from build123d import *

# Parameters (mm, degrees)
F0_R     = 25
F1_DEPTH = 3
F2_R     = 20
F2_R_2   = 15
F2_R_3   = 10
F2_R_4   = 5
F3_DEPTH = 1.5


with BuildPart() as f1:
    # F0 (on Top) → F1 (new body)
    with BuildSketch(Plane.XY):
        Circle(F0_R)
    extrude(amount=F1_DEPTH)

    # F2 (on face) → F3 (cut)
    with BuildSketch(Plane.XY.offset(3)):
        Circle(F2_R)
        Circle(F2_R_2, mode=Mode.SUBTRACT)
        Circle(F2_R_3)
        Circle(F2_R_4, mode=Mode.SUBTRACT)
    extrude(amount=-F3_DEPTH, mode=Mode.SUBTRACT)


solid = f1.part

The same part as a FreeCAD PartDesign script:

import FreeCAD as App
import Part
import Sketcher
from FreeCAD import Vector
Q = App.Units.Quantity

doc = App.newDocument("Part")
params = doc.addObject("Spreadsheet::Sheet", "Params")
for row, (alias, value) in enumerate([
    ("sketch1_diameter", "50 mm"),
    ("pad1_length", "3 mm"),
    ("sketch2_diameter", "40 mm"),
    ("sketch2_diameter2", "30 mm"),
    ("sketch2_diameter3", "20 mm"),
    ("sketch2_diameter4", "10 mm"),
    ("pocket1_length", "1.5 mm"),
], start=1):
    params.set(f"A{row}", alias)
    params.set(f"B{row}", "=" + value)
    params.setAlias(f"B{row}", alias)

body = doc.addObject("PartDesign::Body", "Body")

sketch1 = body.newObject("Sketcher::SketchObject", "Sketch")
sketch1.AttachmentSupport = (doc.getObject("XY_Plane"), [""])
sketch1.MapMode = "FlatFace"
sketch1.addGeometry(Part.Circle(Vector(0, 0, 0), Vector(0, 0, 1), 25), False)
sketch1.addConstraint([
    Sketcher.Constraint("Coincident", 0, 3, -1, 1),
    Sketcher.Constraint("Diameter", 0, Q("50 mm")),
])
sketch1.setExpression("Constraints[1]", "Params.sketch1_diameter")
pad1 = body.newObject("PartDesign::Pad", "Pad")
pad1.Profile = sketch1
pad1.setExpression("Length", "Params.pad1_length")

sketch2 = body.newObject("Sketcher::SketchObject", "Sketch001")
sketch2.AttachmentSupport = (doc.getObject("XY_Plane"), [""])
sketch2.MapMode = "FlatFace"
sketch2.AttachmentOffset = App.Placement(Vector(0, 0, 3), App.Rotation())
sketch2.addGeometry([
    Part.Circle(Vector(0, 0, 0), Vector(0, 0, 1), 20),
    Part.Circle(Vector(0, 0, 0), Vector(0, 0, 1), 15),
    Part.Circle(Vector(0, 0, 0), Vector(0, 0, 1), 10),
    Part.Circle(Vector(0, 0, 0), Vector(0, 0, 1), 5),
], False)
sketch2.addConstraint([
    Sketcher.Constraint("Coincident", 0, 3, -1, 1),
    Sketcher.Constraint("Coincident", 1, 3, -1, 1),
    Sketcher.Constraint("Coincident", 2, 3, -1, 1),
    Sketcher.Constraint("Coincident", 3, 3, -1, 1),
    Sketcher.Constraint("Diameter", 0, Q("40 mm")),
    Sketcher.Constraint("Diameter", 1, Q("30 mm")),
    Sketcher.Constraint("Diameter", 2, Q("20 mm")),
    Sketcher.Constraint("Diameter", 3, Q("10 mm")),
])
sketch2.setExpression("Constraints[4]", "Params.sketch2_diameter")
sketch2.setExpression("Constraints[5]", "Params.sketch2_diameter2")
sketch2.setExpression("Constraints[6]", "Params.sketch2_diameter3")
sketch2.setExpression("Constraints[7]", "Params.sketch2_diameter4")
pocket1 = body.newObject("PartDesign::Pocket", "Pocket")
pocket1.Profile = sketch2
pocket1.setExpression("Length", "Params.pocket1_length")

doc.recompute()
